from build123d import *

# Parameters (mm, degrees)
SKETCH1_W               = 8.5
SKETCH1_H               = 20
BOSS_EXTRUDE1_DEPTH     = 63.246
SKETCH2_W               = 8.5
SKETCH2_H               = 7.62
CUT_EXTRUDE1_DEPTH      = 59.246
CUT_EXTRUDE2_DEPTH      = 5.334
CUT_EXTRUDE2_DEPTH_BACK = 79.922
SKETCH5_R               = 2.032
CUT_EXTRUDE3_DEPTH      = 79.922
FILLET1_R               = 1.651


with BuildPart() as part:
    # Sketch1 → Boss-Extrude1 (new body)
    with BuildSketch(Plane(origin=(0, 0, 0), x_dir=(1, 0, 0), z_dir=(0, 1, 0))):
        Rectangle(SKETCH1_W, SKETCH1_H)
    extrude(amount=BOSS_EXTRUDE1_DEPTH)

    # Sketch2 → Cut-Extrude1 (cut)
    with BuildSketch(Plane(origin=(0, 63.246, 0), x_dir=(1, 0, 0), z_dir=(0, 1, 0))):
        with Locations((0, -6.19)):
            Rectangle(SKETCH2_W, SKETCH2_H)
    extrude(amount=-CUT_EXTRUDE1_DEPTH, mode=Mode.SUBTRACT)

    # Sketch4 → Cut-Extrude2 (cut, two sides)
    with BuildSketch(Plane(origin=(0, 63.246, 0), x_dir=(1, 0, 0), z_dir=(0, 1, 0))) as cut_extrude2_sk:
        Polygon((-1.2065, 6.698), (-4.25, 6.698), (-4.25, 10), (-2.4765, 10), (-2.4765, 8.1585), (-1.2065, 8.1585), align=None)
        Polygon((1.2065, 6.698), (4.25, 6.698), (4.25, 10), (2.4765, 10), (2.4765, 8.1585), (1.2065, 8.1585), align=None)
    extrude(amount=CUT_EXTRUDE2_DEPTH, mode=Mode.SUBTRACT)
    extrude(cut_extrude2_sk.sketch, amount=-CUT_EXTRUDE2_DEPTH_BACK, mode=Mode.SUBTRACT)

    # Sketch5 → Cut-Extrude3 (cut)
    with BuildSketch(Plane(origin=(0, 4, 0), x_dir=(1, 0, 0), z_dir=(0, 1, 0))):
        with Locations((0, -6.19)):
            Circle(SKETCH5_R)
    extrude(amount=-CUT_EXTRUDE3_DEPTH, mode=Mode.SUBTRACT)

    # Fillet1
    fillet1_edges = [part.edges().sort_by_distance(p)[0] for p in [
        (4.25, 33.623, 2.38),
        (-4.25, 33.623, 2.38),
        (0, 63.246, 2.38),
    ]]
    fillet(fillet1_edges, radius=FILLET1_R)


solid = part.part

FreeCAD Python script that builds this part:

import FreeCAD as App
import Part
import Sketcher
from FreeCAD import Vector
Q = App.Units.Quantity


def edges_at(feature, points):
    """Names of the edges that pass closest to the given points."""
    edges = feature.Shape.Edges
    near = lambda p: min(range(len(edges)), key=lambda i: edges[i].distToShape(Part.Vertex(*p))[0])
    return sorted({f"Edge{near(p) + 1}" for p in points})


def add_polygon(sketch, points):
    """Adds a closed chain of lines whose ends are joined by coincident constraints."""
    first, n = sketch.GeometryCount, len(points)
    for a, b in zip(points, points[1:] + points[:1]):
        sketch.addGeometry(Part.LineSegment(App.Vector(*a, 0), App.Vector(*b, 0)), False)
    for i in range(n):
        sketch.addConstraint(Sketcher.Constraint("Coincident", first + i, 2, first + (i + 1) % n, 1))

doc = App.newDocument("Part")
body = doc.addObject("PartDesign::Body", "Body")

# Sketch on XZ plane
sketch1 = doc.addObject("Sketcher::SketchObject", "Sketch")
body.addObject(sketch1)
sketch1.AttachmentSupport = (doc.XZ_Plane, [""])
sketch1.MapMode = "FlatFace"
add_polygon(sketch1, [(-4, -10), (-4, 10), (4, 10), (4, -10)])  # lines 0-3
sketch1.addConstraint([
    Sketcher.Constraint("Vertical", 0),
    Sketcher.Constraint("Horizontal", 1),
    Sketcher.Constraint("Vertical", 2),
    Sketcher.Constraint("Horizontal", 3),
    Sketcher.Constraint("Symmetric", 0, 2, 2, 2, -1, 1),
    Sketcher.Constraint("DistanceX", 1, 1, 1, 2, 8.5),
    Sketcher.Constraint("DistanceY", 0, 1, 0, 2, 20.0),
])
pad1 = doc.addObject("PartDesign::Pad", "Pad")
body.addObject(pad1)
pad1.Profile = sketch1
pad1.Length = Q("2.49 in")
pad1.Reversed = True

# Sketch on XZ plane
sketch2 = doc.addObject("Sketcher::SketchObject", "Sketch001")
body.addObject(sketch2)
sketch2.AttachmentSupport = (doc.XZ_Plane, [""])
sketch2.MapMode = "FlatFace"
sketch2.AttachmentOffset = App.Placement(Vector(0, 0, -2.49 * 25.4), App.Rotation())
add_polygon(sketch2, [(-4, 2), (-4, 10), (4, 10), (4, 2)])  # lines 0-3
sketch2.addConstraint([
    Sketcher.Constraint("Vertical", 0),
    Sketcher.Constraint("Horizontal", 1),
    Sketcher.Constraint("Vertical", 2),
    Sketcher.Constraint("Horizontal", 3),
    Sketcher.Constraint("DistanceY", 0, 1, 0, 2, Q("0.3 in")),
    Sketcher.Constraint("DistanceX", 1, 1, 1, 2, 8.5),
    Sketcher.Constraint("DistanceX", 0, 2, -1, 1, 4.25),
    Sketcher.Constraint("DistanceY", -1, 1, 0, 2, 10.0),
])
pocket1 = doc.addObject("PartDesign::Pocket", "Pocket")
body.addObject(pocket1)
pocket1.Profile = sketch2
pocket1.Length = 59.246
pocket1.Reversed = True

# Sketch on XZ plane
sketch3 = doc.addObject("Sketcher::SketchObject", "Sketch002")
body.addObject(sketch3)
sketch3.AttachmentSupport = (doc.XZ_Plane, [""])
sketch3.MapMode = "FlatFace"
sketch3.AttachmentOffset = App.Placement(Vector(0, 0, -2.49 * 25.4), App.Rotation())
add_polygon(sketch3, [(-4.2, -6.7), (-1.2, -6.7), (-1.2, -8.2), (-2.5, -8.2), (-2.5, -10), (-4.2, -10)])  # lines 0-5
add_polygon(sketch3, [(1.2, -6.7), (4.2, -6.7), (4.2, -10), (2.5, -10), (2.5, -8.2), (1.2, -8.2)])  # lines 6-11
sketch3.addConstraint([
    Sketcher.Constraint("Horizontal", 0),
    Sketcher.Constraint("Vertical", 1),
    Sketcher.Constraint("Horizontal", 2),
    Sketcher.Constraint("Vertical", 3),
    Sketcher.Constraint("Horizontal", 4),
    Sketcher.Constraint("Vertical", 5),
    Sketcher.Constraint("Horizontal", 6),
    Sketcher.Constraint("Vertical", 7),
    Sketcher.Constraint("Horizontal", 8),
    Sketcher.Constraint("Vertical", 9),
    Sketcher.Constraint("Horizontal", 10),
    Sketcher.Constraint("Vertical", 11),
    Sketcher.Constraint("Symmetric", 5, 2, 6, 2, -2),
    Sketcher.Constraint("Symmetric", 3, 2, 8, 2, -2),
    Sketcher.Constraint("Symmetric", 1, 2, 10, 2, -2),
    Sketcher.Constraint("DistanceX", 2, 2, 2, 1, Q("0.05 in")),
    Sketcher.Constraint("DistanceY", 5, 1, 5, 2, Q("0.13 in")),
    Sketcher.Constraint("DistanceY", 1, 2, 1, 1, Q("0.0575 in")),
    Sketcher.Constraint("DistanceX", 1, 2, 8, 2, Q("0.145 in")),
    Sketcher.Constraint("DistanceX", 0, 1, 0, 2, 3.0435),
    Sketcher.Constraint("DistanceY", 0, 2, -1, 1, 6.698),
])
pocket2 = doc.addObject("PartDesign::Pocket", "Pocket001")
body.addObject(pocket2)
pocket2.Profile = sketch3
pocket2.Type = "ThroughAll"
pocket2.Midplane = True

# Sketch on XZ plane
sketch4 = doc.addObject("Sketcher::SketchObject", "Sketch003")
body.addObject(sketch4)
sketch4.AttachmentSupport = (doc.XZ_Plane, [""])
sketch4.MapMode = "FlatFace"
sketch4.AttachmentOffset = App.Placement(Vector(0, 0, -4), App.Rotation())
sketch4.addGeometry(Part.Circle(Vector(0, 6.2, 0), Vector(0, 0, 1), 2), False)
sketch4.addConstraint([
    Sketcher.Constraint("PointOnObject", 0, 3, -2),
    Sketcher.Constraint("Diameter", 0, Q("0.16 in")),
    Sketcher.Constraint("DistanceY", -1, 1, 0, 3, 6.19),
])
pocket3 = doc.addObject("PartDesign::Pocket", "Pocket002")
body.addObject(pocket3)
pocket3.Profile = sketch4
pocket3.Length = 79.922
pocket3.Reversed = True
doc.recompute()

fillet = doc.addObject("PartDesign::Fillet", "Fillet")
body.addObject(fillet)
fillet.Base = (pocket3, edges_at(pocket3, [(4.25, 33.623, 2.38), (-4.25, 33.623, 2.38), (0, 63.246, 2.38)]))
fillet.Radius = Q("0.065 in")

doc.recompute()
